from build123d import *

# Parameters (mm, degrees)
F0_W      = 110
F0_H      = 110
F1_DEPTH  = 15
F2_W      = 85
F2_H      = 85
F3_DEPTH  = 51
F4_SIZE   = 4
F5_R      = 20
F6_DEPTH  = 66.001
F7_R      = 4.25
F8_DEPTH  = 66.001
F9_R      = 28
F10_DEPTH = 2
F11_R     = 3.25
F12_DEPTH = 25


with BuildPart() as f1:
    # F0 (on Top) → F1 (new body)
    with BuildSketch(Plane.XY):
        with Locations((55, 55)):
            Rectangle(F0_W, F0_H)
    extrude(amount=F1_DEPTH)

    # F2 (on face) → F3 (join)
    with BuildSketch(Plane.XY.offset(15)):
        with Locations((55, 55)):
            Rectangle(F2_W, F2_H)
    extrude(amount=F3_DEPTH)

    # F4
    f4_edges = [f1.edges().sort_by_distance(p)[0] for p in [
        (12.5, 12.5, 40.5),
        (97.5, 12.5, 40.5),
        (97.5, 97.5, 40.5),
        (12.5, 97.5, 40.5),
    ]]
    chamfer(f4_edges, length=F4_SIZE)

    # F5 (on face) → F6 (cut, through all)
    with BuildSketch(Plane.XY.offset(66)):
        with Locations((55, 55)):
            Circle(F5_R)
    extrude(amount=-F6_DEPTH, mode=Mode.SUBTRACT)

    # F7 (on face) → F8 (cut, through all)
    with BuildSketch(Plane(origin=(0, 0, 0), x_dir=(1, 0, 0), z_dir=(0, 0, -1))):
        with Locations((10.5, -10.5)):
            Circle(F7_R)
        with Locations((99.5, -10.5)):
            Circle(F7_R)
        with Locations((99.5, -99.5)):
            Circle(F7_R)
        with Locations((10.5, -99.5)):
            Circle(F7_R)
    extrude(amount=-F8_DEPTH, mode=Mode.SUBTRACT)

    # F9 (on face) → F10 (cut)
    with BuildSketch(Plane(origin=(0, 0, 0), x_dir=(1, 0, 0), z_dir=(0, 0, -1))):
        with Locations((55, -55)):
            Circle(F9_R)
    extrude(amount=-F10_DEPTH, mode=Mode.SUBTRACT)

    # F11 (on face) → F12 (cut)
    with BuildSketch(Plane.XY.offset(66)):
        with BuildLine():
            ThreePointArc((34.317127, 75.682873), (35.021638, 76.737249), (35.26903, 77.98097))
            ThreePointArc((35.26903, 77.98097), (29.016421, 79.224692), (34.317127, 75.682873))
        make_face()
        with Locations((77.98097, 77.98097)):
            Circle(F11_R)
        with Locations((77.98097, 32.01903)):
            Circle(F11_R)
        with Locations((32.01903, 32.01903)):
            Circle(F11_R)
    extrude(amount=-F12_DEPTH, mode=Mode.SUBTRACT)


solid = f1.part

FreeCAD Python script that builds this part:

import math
import FreeCAD as App
import Part
import Sketcher
Q = App.Units.Quantity


def edges_at(feature, points):
    """Names of the edges that pass closest to the given points."""
    edges = feature.Shape.Edges
    near = lambda p: min(range(len(edges)), key=lambda i: edges[i].distToShape(Part.Vertex(*p))[0])
    return sorted({f"Edge{near(p) + 1}" for p in points})

doc = App.newDocument("Part")
params = doc.addObject("Spreadsheet::Sheet", "Params")
for row, (alias, value) in enumerate([
    ("sketch1_width", "110 mm"),
    ("pad1_length", "15 mm"),
    ("sketch2_width", "85 mm"),
    ("pad2_length", "51 mm"),
    ("chamfer_size", "4 mm"),
    ("sketch3_diameter", "40 mm"),
    ("sketch4_diameter", "8.5 mm"),
    ("sketch5_diameter", "56 mm"),
    ("pocket3_length", "2 mm"),
    ("sketch6_diameter", "6.5 mm"),
    ("pocket4_length", "25 mm"),
], start=1):
    params.set(f"A{row}", alias)
    params.set(f"B{row}", "=" + value)
    params.setAlias(f"B{row}", alias)

body = doc.addObject("PartDesign::Body", "Body")

sketch1 = body.newObject("Sketcher::SketchObject", "Sketch")
sketch1.AttachmentSupport = (doc.getObject("XY_Plane"), [""])
sketch1.MapMode = "FlatFace"
sketch1.addGeometry([
    Part.LineSegment(App.Vector(0, 110, 0), App.Vector(0, 0, 0)),
    Part.LineSegment(App.Vector(0, 0, 0), App.Vector(110, 0, 0)),
    Part.LineSegment(App.Vector(110, 0, 0), App.Vector(110, 110, 0)),
    Part.LineSegment(App.Vector(110, 110, 0), App.Vector(0, 110, 0)),
], False)
sketch1.addConstraint([
    Sketcher.Constraint("Coincident", 0, 2, 1, 1),
    Sketcher.Constraint("Coincident", 1, 2, 2, 1),
    Sketcher.Constraint("Coincident", 2, 2, 3, 1),
    Sketcher.Constraint("Coincident", 3, 2, 0, 1),
    Sketcher.Constraint("Vertical", 0),
    Sketcher.Constraint("Horizontal", 1),
    Sketcher.Constraint("Vertical", 2),
    Sketcher.Constraint("Horizontal", 3),
    Sketcher.Constraint("Coincident", 0, 2, -1, 1),
    Sketcher.Constraint("Equal", 3, 0),
    Sketcher.Constraint("DistanceX", 1, 1, 1, 2, Q("110 mm")),
])
sketch1.setExpression("Constraints[10]", "Params.sketch1_width")
pad1 = body.newObject("PartDesign::Pad", "Pad")
pad1.Profile = sketch1
pad1.setExpression("Length", "Params.pad1_length")

sketch2 = body.newObject("Sketcher::SketchObject", "Sketch001")
sketch2.AttachmentSupport = (doc.getObject("XY_Plane"), [""])
sketch2.MapMode = "FlatFace"
sketch2.AttachmentOffset = App.Placement(App.Vector(0, 0, 15), App.Rotation())
sketch2.addGeometry([
    Part.LineSegment(App.Vector(12.5, 97.5, 0), App.Vector(12.5, 12.5, 0)),
    Part.LineSegment(App.Vector(12.5, 12.5, 0), App.Vector(97.5, 12.5, 0)),
    Part.LineSegment(App.Vector(97.5, 12.5, 0), App.Vector(97.5, 97.5, 0)),
    Part.LineSegment(App.Vector(97.5, 97.5, 0), App.Vector(12.5, 97.5, 0)),
], False)
sketch2.addConstraint([
    Sketcher.Constraint("Coincident", 0, 2, 1, 1),
    Sketcher.Constraint("Coincident", 1, 2, 2, 1),
    Sketcher.Constraint("Coincident", 2, 2, 3, 1),
    Sketcher.Constraint("Coincident", 3, 2, 0, 1),
    Sketcher.Constraint("Vertical", 0),
    Sketcher.Constraint("Horizontal", 1),
    Sketcher.Constraint("Vertical", 2),
    Sketcher.Constraint("Horizontal", 3),
    Sketcher.Constraint("Equal", 3, 0),
    Sketcher.Constraint("DistanceX", 1, 1, 1, 2, Q("85 mm")),
    Sketcher.Constraint("DistanceX", -1, 1, 0, 2, Q("12.5 mm")),
    Sketcher.Constraint("DistanceY", -1, 1, 0, 2, Q("12.5 mm")),
])
sketch2.setExpression("Constraints[9]", "Params.sketch2_width")
pad2 = body.newObject("PartDesign::Pad", "Pad001")
pad2.Profile = sketch2
pad2.setExpression("Length", "Params.pad2_length")
doc.recompute()

chamfer = body.newObject("PartDesign::Chamfer", "Chamfer")
chamfer.Base = (pad2, edges_at(pad2, [
    (12.5, 12.5, 40.5),
    (97.5, 12.5, 40.5),
    (97.5, 97.5, 40.5),
    (12.5, 97.5, 40.5),
]))
chamfer.setExpression("Size", "Params.chamfer_size")

sketch3 = body.newObject("Sketcher::SketchObject", "Sketch002")
sketch3.AttachmentSupport = (doc.getObject("XY_Plane"), [""])
sketch3.MapMode = "FlatFace"
sketch3.AttachmentOffset = App.Placement(App.Vector(0, 0, 66), App.Rotation())
sketch3.addGeometry(Part.Circle(App.Vector(55, 55, 0), App.Vector(0, 0, 1), 20), False)
sketch3.addConstraint([
    Sketcher.Constraint("Diameter", 0, Q("40 mm")),
    Sketcher.Constraint("DistanceX", -1, 1, 0, 3, Q("55 mm")),
    Sketcher.Constraint("DistanceY", -1, 1, 0, 3, Q("55 mm")),
])
sketch3.setExpression("Constraints[0]", "Params.sketch3_diameter")
pocket1 = body.newObject("PartDesign::Pocket", "Pocket")
pocket1.Profile = sketch3
pocket1.Type = "ThroughAll"

sketch4 = body.newObject("Sketcher::SketchObject", "Sketch003")
sketch4.AttachmentSupport = (doc.getObject("XY_Plane"), [""])
sketch4.MapMode = "FlatFace"
sketch4.addGeometry([
    Part.Circle(App.Vector(10.5, 10.5, 0), App.Vector(0, 0, 1), 4.25),
    Part.Circle(App.Vector(99.5, 10.5, 0), App.Vector(0, 0, 1), 4.25),
    Part.Circle(App.Vector(99.5, 99.5, 0), App.Vector(0, 0, 1), 4.25),
    Part.Circle(App.Vector(10.5, 99.5, 0), App.Vector(0, 0, 1), 4.25),
], False)
sketch4.addConstraint([
    Sketcher.Constraint("Equal", 0, 1),
    Sketcher.Constraint("Equal", 1, 2),
    Sketcher.Constraint("Equal", 2, 3),
    Sketcher.Constraint("Horizontal", 0, 3, 1, 3),
    Sketcher.Constraint("Horizontal", 2, 3, 3, 3),
    Sketcher.Constraint("Vertical", 1, 3, 2, 3),
    Sketcher.Constraint("Vertical", 0, 3, 3, 3),
    Sketcher.Constraint("Diameter", 0, Q("8.5 mm")),
    Sketcher.Constraint("DistanceX", 0, 3, 1, 3, Q("89 mm")),
    Sketcher.Constraint("DistanceY", 1, 3, 2, 3, Q("89 mm")),
    Sketcher.Constraint("DistanceX", -1, 1, 0, 3, Q("10.5 mm")),
    Sketcher.Constraint("DistanceY", -1, 1, 0, 3, Q("10.5 mm")),
])
sketch4.setExpression("Constraints[7]", "Params.sketch4_diameter")
pocket2 = body.newObject("PartDesign::Pocket", "Pocket001")
pocket2.Profile = sketch4
pocket2.Type = "ThroughAll"
pocket2.Reversed = True

sketch5 = body.newObject("Sketcher::SketchObject", "Sketch004")
sketch5.AttachmentSupport = (doc.getObject("XY_Plane"), [""])
sketch5.MapMode = "FlatFace"
sketch5.addGeometry(Part.Circle(App.Vector(55, 55, 0), App.Vector(0, 0, 1), 28), False)
sketch5.addConstraint([
    Sketcher.Constraint("Diameter", 0, Q("56 mm")),
    Sketcher.Constraint("DistanceX", -1, 1, 0, 3, Q("55 mm")),
    Sketcher.Constraint("DistanceY", -1, 1, 0, 3, Q("55 mm")),
])
sketch5.setExpression("Constraints[0]", "Params.sketch5_diameter")
pocket3 = body.newObject("PartDesign::Pocket", "Pocket002")
pocket3.Profile = sketch5
pocket3.setExpression("Length", "Params.pocket3_length")
pocket3.Reversed = True

sketch6 = body.newObject("Sketcher::SketchObject", "Sketch005")
sketch6.AttachmentSupport = (doc.getObject("XY_Plane"), [""])
sketch6.MapMode = "FlatFace"
sketch6.AttachmentOffset = App.Placement(App.Vector(0, 0, 66), App.Rotation())
sketch6.addGeometry([
    Part.ArcOfCircle(Part.Circle(App.Vector(32.019024, 77.980972, 0), App.Vector(0, 0, 1), 3.250006), math.radians(-44.999959), math.radians(-0.000043)),
    Part.ArcOfCircle(Part.Circle(App.Vector(32.01903, 77.98097, 0), App.Vector(0, 0, 1), 3.25), math.radians(-0.000004), math.radians(315.000002)),
    Part.Circle(App.Vector(77.98097, 77.98097, 0), App.Vector(0, 0, 1), 3.25),
    Part.Circle(App.Vector(77.98097, 32.01903, 0), App.Vector(0, 0, 1), 3.25),
    Part.Circle(App.Vector(32.01903, 32.01903, 0), App.Vector(0, 0, 1), 3.25),
], False)
sketch6.addConstraint([
    Sketcher.Constraint("Tangent", 0, 1, 1, 2),
    Sketcher.Constraint("Coincident", 1, 1, 0, 2),
    Sketcher.Constraint("Equal", 1, 2),
    Sketcher.Constraint("Equal", 2, 3),
    Sketcher.Constraint("Equal", 3, 4),
    Sketcher.Constraint("Horizontal", 1, 3, 2, 3),
    Sketcher.Constraint("Horizontal", 3, 3, 4, 3),
    Sketcher.Constraint("Horizontal", 2, 3, 1, 1),
    Sketcher.Constraint("Vertical", 2, 3, 3, 3),
    Sketcher.Constraint("Vertical", 1, 3, 4, 3),
    Sketcher.Constraint("Diameter", 2, Q("6.5 mm")),
    Sketcher.Constraint("DistanceY", 0, 1, 0, 3, Q("2.298099 mm")),
    Sketcher.Constraint("DistanceX", -1, 1, 1, 3, Q("32.01903 mm")),
    Sketcher.Constraint("DistanceY", -1, 1, 1, 3, Q("77.98097 mm")),
    Sketcher.Constraint("DistanceX", -1, 1, 2, 3, Q("77.98097 mm")),
    Sketcher.Constraint("DistanceY", -1, 1, 3, 3, Q("32.01903 mm")),
])
sketch6.setExpression("Constraints[10]", "Params.sketch6_diameter")
pocket4 = body.newObject("PartDesign::Pocket", "Pocket003")
pocket4.Profile = sketch6
pocket4.setExpression("Length", "Params.pocket4_length")

doc.recompute()
